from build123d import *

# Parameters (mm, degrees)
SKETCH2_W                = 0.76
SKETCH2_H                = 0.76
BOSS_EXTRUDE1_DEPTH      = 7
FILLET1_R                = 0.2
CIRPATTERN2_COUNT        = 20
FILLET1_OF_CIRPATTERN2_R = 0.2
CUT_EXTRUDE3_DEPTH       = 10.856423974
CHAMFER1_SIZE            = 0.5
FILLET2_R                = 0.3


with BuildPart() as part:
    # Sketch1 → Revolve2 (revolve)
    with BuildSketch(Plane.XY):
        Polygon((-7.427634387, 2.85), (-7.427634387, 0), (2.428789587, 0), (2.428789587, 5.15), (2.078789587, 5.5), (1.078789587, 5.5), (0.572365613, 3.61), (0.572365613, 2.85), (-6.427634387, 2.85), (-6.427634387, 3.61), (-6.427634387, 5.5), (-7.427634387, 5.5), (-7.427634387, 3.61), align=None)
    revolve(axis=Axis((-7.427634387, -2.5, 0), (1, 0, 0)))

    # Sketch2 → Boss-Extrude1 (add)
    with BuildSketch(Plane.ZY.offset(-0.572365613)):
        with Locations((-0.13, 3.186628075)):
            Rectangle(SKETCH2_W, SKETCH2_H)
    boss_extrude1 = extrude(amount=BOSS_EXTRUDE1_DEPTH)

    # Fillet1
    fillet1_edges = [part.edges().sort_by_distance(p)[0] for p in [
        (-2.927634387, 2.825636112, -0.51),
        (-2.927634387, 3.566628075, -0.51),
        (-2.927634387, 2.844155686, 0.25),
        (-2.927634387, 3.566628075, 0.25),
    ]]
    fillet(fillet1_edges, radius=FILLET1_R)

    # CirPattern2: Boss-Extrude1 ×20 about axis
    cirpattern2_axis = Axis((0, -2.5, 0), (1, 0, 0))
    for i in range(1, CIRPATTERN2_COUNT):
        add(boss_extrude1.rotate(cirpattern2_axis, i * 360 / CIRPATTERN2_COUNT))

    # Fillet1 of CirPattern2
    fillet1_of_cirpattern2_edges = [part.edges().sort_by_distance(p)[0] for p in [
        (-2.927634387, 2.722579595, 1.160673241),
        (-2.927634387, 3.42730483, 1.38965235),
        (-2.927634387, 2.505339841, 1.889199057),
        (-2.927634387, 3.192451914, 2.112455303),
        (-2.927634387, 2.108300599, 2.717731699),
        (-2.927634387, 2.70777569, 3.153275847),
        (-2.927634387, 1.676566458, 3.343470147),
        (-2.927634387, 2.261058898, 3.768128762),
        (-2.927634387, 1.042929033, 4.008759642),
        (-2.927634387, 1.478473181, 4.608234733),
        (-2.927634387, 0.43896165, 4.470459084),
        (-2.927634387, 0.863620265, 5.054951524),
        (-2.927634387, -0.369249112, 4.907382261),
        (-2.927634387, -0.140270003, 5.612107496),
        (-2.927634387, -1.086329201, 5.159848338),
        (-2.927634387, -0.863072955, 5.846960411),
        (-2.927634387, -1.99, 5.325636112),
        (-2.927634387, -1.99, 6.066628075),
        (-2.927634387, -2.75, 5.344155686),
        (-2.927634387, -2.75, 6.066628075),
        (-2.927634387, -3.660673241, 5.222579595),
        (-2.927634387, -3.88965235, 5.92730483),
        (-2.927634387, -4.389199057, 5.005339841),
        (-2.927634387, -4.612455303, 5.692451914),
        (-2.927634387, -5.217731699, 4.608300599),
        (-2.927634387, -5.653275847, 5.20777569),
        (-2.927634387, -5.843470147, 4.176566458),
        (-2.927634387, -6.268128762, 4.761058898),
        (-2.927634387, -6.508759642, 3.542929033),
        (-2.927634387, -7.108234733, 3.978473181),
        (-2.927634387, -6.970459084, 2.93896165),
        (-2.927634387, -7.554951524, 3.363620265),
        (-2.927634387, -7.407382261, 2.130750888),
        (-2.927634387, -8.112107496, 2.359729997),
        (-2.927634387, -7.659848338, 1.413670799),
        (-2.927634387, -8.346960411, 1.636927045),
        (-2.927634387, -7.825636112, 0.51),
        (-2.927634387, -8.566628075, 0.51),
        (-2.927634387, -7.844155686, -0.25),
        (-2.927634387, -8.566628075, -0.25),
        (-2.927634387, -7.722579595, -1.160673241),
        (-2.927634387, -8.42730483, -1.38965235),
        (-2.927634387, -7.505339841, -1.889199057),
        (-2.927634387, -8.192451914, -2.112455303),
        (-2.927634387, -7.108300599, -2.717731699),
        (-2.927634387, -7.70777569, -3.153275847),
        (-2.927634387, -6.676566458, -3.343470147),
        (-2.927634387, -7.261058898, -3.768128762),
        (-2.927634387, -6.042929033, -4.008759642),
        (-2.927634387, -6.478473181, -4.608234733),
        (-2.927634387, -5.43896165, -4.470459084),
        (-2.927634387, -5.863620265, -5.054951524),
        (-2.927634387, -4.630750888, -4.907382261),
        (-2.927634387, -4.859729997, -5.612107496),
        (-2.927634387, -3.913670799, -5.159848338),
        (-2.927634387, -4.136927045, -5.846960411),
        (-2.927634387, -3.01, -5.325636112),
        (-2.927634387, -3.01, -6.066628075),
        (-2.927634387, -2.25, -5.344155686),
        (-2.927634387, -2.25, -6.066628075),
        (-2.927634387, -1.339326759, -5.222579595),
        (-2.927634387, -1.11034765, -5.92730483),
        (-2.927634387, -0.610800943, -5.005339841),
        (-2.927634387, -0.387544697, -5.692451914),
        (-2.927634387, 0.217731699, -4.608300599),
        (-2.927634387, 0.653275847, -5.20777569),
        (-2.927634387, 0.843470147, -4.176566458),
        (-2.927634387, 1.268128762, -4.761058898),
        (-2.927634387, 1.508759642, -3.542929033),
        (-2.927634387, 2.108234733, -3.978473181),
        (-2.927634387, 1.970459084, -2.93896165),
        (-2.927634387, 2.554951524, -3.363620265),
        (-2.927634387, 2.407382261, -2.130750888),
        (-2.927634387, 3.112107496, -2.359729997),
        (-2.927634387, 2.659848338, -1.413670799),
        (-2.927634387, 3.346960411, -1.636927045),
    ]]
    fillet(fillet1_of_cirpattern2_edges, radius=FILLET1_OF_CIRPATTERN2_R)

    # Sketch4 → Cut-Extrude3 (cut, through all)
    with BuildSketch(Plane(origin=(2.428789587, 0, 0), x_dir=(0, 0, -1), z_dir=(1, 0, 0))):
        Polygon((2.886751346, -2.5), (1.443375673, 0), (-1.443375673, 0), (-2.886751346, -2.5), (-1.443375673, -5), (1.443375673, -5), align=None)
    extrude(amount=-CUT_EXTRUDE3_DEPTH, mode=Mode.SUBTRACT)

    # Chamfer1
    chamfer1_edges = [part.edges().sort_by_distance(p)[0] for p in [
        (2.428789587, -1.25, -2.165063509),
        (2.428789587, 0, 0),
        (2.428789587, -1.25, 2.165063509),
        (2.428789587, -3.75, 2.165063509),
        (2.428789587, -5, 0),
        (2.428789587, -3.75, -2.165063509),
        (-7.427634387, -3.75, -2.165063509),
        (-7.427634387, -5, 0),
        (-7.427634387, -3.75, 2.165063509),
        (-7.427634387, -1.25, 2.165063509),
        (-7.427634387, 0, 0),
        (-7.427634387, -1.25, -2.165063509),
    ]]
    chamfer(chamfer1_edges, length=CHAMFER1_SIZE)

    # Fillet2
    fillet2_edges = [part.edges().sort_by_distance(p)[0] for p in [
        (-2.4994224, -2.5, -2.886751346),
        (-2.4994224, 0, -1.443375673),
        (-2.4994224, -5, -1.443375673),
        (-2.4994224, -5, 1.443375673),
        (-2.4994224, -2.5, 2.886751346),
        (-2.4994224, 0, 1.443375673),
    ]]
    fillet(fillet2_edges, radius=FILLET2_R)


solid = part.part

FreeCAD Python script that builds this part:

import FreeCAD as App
import Part
import Sketcher
Q = App.Units.Quantity


def edges_at(feature, points):
    """Names of the edges that pass closest to the given points."""
    edges = feature.Shape.Edges
    near = lambda p: min(range(len(edges)), key=lambda i: edges[i].distToShape(Part.Vertex(*p))[0])
    return sorted({f"Edge{near(p) + 1}" for p in points})

doc = App.newDocument("Part")
body = doc.addObject("PartDesign::Body", "Body")

# Sketch on XY plane
sketch1 = body.newObject("Sketcher::SketchObject", "Sketch")
sketch1.AttachmentSupport = (doc.getObject("XY_Plane"), [""])
sketch1.MapMode = "FlatFace"
sketch1.addGeometry([
    Part.LineSegment(App.Vector(-7.427634, 0, 0), App.Vector(2.42879, 0, 0)),  # 0
    Part.LineSegment(App.Vector(2.42879, 0, 0), App.Vector(2.42879, 5.15, 0)),  # 1
    Part.LineSegment(App.Vector(2.42879, 5.15, 0), App.Vector(2.07879, 5.5, 0)),  # 2
    Part.LineSegment(App.Vector(2.07879, 5.5, 0), App.Vector(1.07879, 5.5, 0)),  # 3
    Part.LineSegment(App.Vector(1.07879, 5.5, 0), App.Vector(0.572366, 3.61, 0)),  # 4
    Part.LineSegment(App.Vector(0.572366, 3.61, 0), App.Vector(0.572366, 2.85, 0)),  # 5
    Part.LineSegment(App.Vector(0.572366, 2.85, 0), App.Vector(-6.427634, 2.85, 0)),  # 6
    Part.LineSegment(App.Vector(-6.427634, 2.85, 0), App.Vector(-6.427634, 5.5, 0)),  # 7
    Part.LineSegment(App.Vector(-6.427634, 5.5, 0), App.Vector(-7.427634, 5.5, 0)),  # 8
    Part.LineSegment(App.Vector(-7.427634, 5.5, 0), App.Vector(-7.427634, 0, 0)),  # 9
], False)
sketch1.addGeometry(Part.LineSegment(App.Vector(-7.427634, -2.5, 0), App.Vector(2.42879, -2.5, 0)), True)  # axis
sketch1.addConstraint([
    Sketcher.Constraint("Coincident", 0, 2, 1, 1),
    Sketcher.Constraint("Coincident", 1, 2, 2, 1),
    Sketcher.Constraint("Coincident", 2, 2, 3, 1),
    Sketcher.Constraint("Coincident", 3, 2, 4, 1),
    Sketcher.Constraint("Coincident", 4, 2, 5, 1),
    Sketcher.Constraint("Coincident", 5, 2, 6, 1),
    Sketcher.Constraint("Coincident", 6, 2, 7, 1),
    Sketcher.Constraint("Coincident", 7, 2, 8, 1),
    Sketcher.Constraint("Coincident", 8, 2, 9, 1),
    Sketcher.Constraint("Coincident", 9, 2, 0, 1),
    Sketcher.Constraint("Horizontal", 0),
    Sketcher.Constraint("Vertical", 1),
    Sketcher.Constraint("Horizontal", 3),
    Sketcher.Constraint("Vertical", 5),
    Sketcher.Constraint("Horizontal", 6),
    Sketcher.Constraint("Vertical", 7),
    Sketcher.Constraint("Horizontal", 8),
    Sketcher.Constraint("Vertical", 9),
    Sketcher.Constraint("Horizontal", 10),
    Sketcher.Constraint("PointOnObject", 0, 2, -1),
    Sketcher.Constraint("Horizontal", 3, 2, 7, 2),
    Sketcher.Constraint("Vertical", 9, 2, 10, 1),
    Sketcher.Constraint("Vertical", 1, 2, 10, 2),
    Sketcher.Constraint("Equal", 3, 8),
    Sketcher.Constraint("DistanceX", 3, 2, 3, 1, 1.0),
    Sketcher.Constraint("DistanceX", 6, 2, 6, 1, 7.0),
    Sketcher.Constraint("Angle", 2, Q("135 deg")),
    Sketcher.Constraint("Angle", 4, Q("-105 deg")),
    Sketcher.Constraint("DistanceY", 9, 2, 9, 1, 5.5),
    Sketcher.Constraint("DistanceY", 10, 1, 8, 2, 8.0),
    Sketcher.Constraint("DistanceY", 1, 1, 1, 2, 5.15),
    Sketcher.Constraint("DistanceY", 5, 2, 5, 1, 0.76),
    Sketcher.Constraint("DistanceY", 7, 1, 7, 2, 2.65),
    Sketcher.Constraint("DistanceX", -1, 1, 0, 2, 2.42879),
])
revolution = body.newObject("PartDesign::Revolution", "Revolution")
revolution.Profile = sketch1
revolution.ReferenceAxis = (sketch1, ["Axis0"])
revolution.Angle = 360

# Sketch on YZ plane
sketch2 = body.newObject("Sketcher::SketchObject", "Sketch001")
sketch2.AttachmentSupport = (doc.getObject("YZ_Plane"), [""])
sketch2.MapMode = "FlatFace"
sketch2.AttachmentOffset = App.Placement(App.Vector(0, 0, 0.572366), App.Rotation())
sketch2.addGeometry([
    Part.LineSegment(App.Vector(3.566628, -0.51, 0), App.Vector(2.806628, -0.51, 0)),
    Part.LineSegment(App.Vector(2.806628, -0.51, 0), App.Vector(2.806628, 0.25, 0)),
    Part.LineSegment(App.Vector(2.806628, 0.25, 0), App.Vector(3.566628, 0.25, 0)),
    Part.LineSegment(App.Vector(3.566628, 0.25, 0), App.Vector(3.566628, -0.51, 0)),
], False)
sketch2.addConstraint([
    Sketcher.Constraint("Coincident", 0, 2, 1, 1),
    Sketcher.Constraint("Coincident", 1, 2, 2, 1),
    Sketcher.Constraint("Coincident", 2, 2, 3, 1),
    Sketcher.Constraint("Coincident", 3, 2, 0, 1),
    Sketcher.Constraint("Horizontal", 0),
    Sketcher.Constraint("Vertical", 1),
    Sketcher.Constraint("Horizontal", 2),
    Sketcher.Constraint("Vertical", 3),
    Sketcher.Constraint("Equal", 2, 1),
    Sketcher.Constraint("DistanceX", 0, 2, 0, 1, 0.76),
    Sketcher.Constraint("DistanceY", 0, 2, -1, 1, 0.51),
    Sketcher.Constraint("DistanceX", -1, 1, 0, 2, 2.806628),
])
pad1 = body.newObject("PartDesign::Pad", "Pad")
pad1.Profile = sketch2
pad1.Length = 7
pad1.Reversed = True
doc.recompute()

fillet = body.newObject("PartDesign::Fillet", "Fillet")
fillet.Base = (pad1, edges_at(pad1, [
    (-2.928, 2.826, -0.51),
    (-2.928, 3.567, -0.51),
    (-2.928, 2.844, 0.25),
    (-2.928, 3.567, 0.25),
]))
fillet.Radius = 0.2
doc.recompute()

datumline = body.newObject("PartDesign::Line", "DatumLine")
datumline.Placement = App.Placement(App.Vector(0, -2.5, 0), App.Rotation(App.Vector(0, 0, 1), App.Vector(1, 0, 0)))
polarpattern = body.newObject("PartDesign::PolarPattern", "PolarPattern")
polarpattern.Originals = [pad1]
polarpattern.Axis = (datumline, [""])
polarpattern.Angle = 360
polarpattern.Occurrences = 20
body.Tip = polarpattern
doc.recompute()

fillet2 = body.newObject("PartDesign::Fillet", "Fillet001")
fillet2.Base = (polarpattern, edges_at(polarpattern, [
    (-2.928, 2.723, 1.161),
    (-2.928, 3.427, 1.39),
    (-2.928, 2.505, 1.889),
    (-2.928, 3.192, 2.112),
    (-2.928, 2.108, 2.718),
    (-2.928, 2.708, 3.153),
    (-2.928, 1.677, 3.343),
    (-2.928, 2.261, 3.768),
    (-2.928, 1.043, 4.009),
    (-2.928, 1.478, 4.608),
    (-2.928, 0.439, 4.47),
    (-2.928, 0.864, 5.055),
    (-2.928, -0.369, 4.907),
    (-2.928, -0.14, 5.612),
    (-2.928, -1.086, 5.16),
    (-2.928, -0.863, 5.847),
    (-2.928, -1.99, 5.326),
    (-2.928, -1.99, 6.067),
    (-2.928, -2.75, 5.344),
    (-2.928, -2.75, 6.067),
    (-2.928, -3.661, 5.223),
    (-2.928, -3.89, 5.927),
    (-2.928, -4.389, 5.005),
    (-2.928, -4.612, 5.692),
    (-2.928, -5.218, 4.608),
    (-2.928, -5.653, 5.208),
    (-2.928, -5.843, 4.177),
    (-2.928, -6.268, 4.761),
    (-2.928, -6.509, 3.543),
    (-2.928, -7.108, 3.978),
    (-2.928, -6.97, 2.939),
    (-2.928, -7.555, 3.364),
    (-2.928, -7.407, 2.131),
    (-2.928, -8.112, 2.36),
    (-2.928, -7.66, 1.414),
    (-2.928, -8.347, 1.637),
    (-2.928, -7.826, 0.51),
    (-2.928, -8.567, 0.51),
    (-2.928, -7.844, -0.25),
    (-2.928, -8.567, -0.25),
    (-2.928, -7.723, -1.161),
    (-2.928, -8.427, -1.39),
    (-2.928, -7.505, -1.889),
    (-2.928, -8.192, -2.112),
    (-2.928, -7.108, -2.718),
    (-2.928, -7.708, -3.153),
    (-2.928, -6.677, -3.343),
    (-2.928, -7.261, -3.768),
    (-2.928, -6.043, -4.009),
    (-2.928, -6.478, -4.608),
    (-2.928, -5.439, -4.47),
    (-2.928, -5.864, -5.055),
    (-2.928, -4.631, -4.907),
    (-2.928, -4.86, -5.612),
    (-2.928, -3.914, -5.16),
    (-2.928, -4.137, -5.847),
    (-2.928, -3.01, -5.326),
    (-2.928, -3.01, -6.067),
    (-2.928, -2.25, -5.344),
    (-2.928, -2.25, -6.067),
    (-2.928, -1.339, -5.223),
    (-2.928, -1.11, -5.927),
    (-2.928, -0.611, -5.005),
    (-2.928, -0.388, -5.692),
    (-2.928, 0.218, -4.608),
    (-2.928, 0.653, -5.208),
    (-2.928, 0.843, -4.177),
    (-2.928, 1.268, -4.761),
    (-2.928, 1.509, -3.543),
    (-2.928, 2.108, -3.978),
    (-2.928, 1.97, -2.939),
    (-2.928, 2.555, -3.364),
    (-2.928, 2.407, -2.131),
    (-2.928, 3.112, -2.36),
    (-2.928, 2.66, -1.414),
    (-2.928, 3.347, -1.637),
]))
fillet2.Radius = 0.2

# Sketch on YZ plane
sketch3 = body.newObject("Sketcher::SketchObject", "Sketch002")
sketch3.AttachmentSupport = (doc.getObject("YZ_Plane"), [""])
sketch3.MapMode = "FlatFace"
sketch3.AttachmentOffset = App.Placement(App.Vector(0, 0, 2.42879), App.Rotation())
sketch3.addGeometry([
    Part.LineSegment(App.Vector(-2.5, -2.886751, 0), App.Vector(0, -1.443376, 0)),  # 0
    Part.LineSegment(App.Vector(0, -1.443376, 0), App.Vector(0, 1.443376, 0)),  # 1
    Part.LineSegment(App.Vector(0, 1.443376, 0), App.Vector(-2.5, 2.886751, 0)),  # 2
    Part.LineSegment(App.Vector(-2.5, 2.886751, 0), App.Vector(-5, 1.443376, 0)),  # 3
    Part.LineSegment(App.Vector(-5, 1.443376, 0), App.Vector(-5, -1.443376, 0)),  # 4
    Part.LineSegment(App.Vector(-5, -1.443376, 0), App.Vector(-2.5, -2.886751, 0)),  # 5
], False)
sketch3.addConstraint([
    Sketcher.Constraint("Coincident", 0, 2, 1, 1),
    Sketcher.Constraint("Coincident", 1, 2, 2, 1),
    Sketcher.Constraint("Coincident", 2, 2, 3, 1),
    Sketcher.Constraint("Coincident", 3, 2, 4, 1),
    Sketcher.Constraint("Coincident", 4, 2, 5, 1),
    Sketcher.Constraint("Coincident", 5, 2, 0, 1),
    Sketcher.Constraint("Vertical", 1),
    Sketcher.Constraint("Vertical", 4),
    Sketcher.Constraint("Symmetric", 0, 2, 1, 2, -1, 1),
    Sketcher.Constraint("Symmetric", 2, 2, 5, 2, -1),
    Sketcher.Constraint("Parallel", 0, 3),
    Sketcher.Constraint("Parallel", 2, 5),
    Sketcher.Constraint("Horizontal", 1, 2, 3, 2),
    Sketcher.Constraint("Angle", 0, Q("30 deg")),
    Sketcher.Constraint("DistanceX", 3, 2, -1, 1, 5.0),
    Sketcher.Constraint("DistanceY", 1, 1, 1, 2, 2.886751),
])
pocket1 = body.newObject("PartDesign::Pocket", "Pocket")
pocket1.Profile = sketch3
pocket1.Type = "ThroughAll"
doc.recompute()

chamfer = body.newObject("PartDesign::Chamfer", "Chamfer")
chamfer.Base = (pocket1, edges_at(pocket1, [
    (2.429, -1.25, -2.165),
    (2.429, 0, 0),
    (2.429, -1.25, 2.165),
    (2.429, -3.75, 2.165),
    (2.429, -5, 0),
    (2.429, -3.75, -2.165),
    (-7.428, -3.75, -2.165),
    (-7.428, -5, 0),
    (-7.428, -3.75, 2.165),
    (-7.428, -1.25, 2.165),
    (-7.428, 0, 0),
    (-7.428, -1.25, -2.165),
]))
chamfer.Size = 0.5
doc.recompute()

fillet3 = body.newObject("PartDesign::Fillet", "Fillet002")
fillet3.Base = (chamfer, edges_at(chamfer, [
    (-2.499, -2.5, -2.887),
    (-2.499, 0, -1.443),
    (-2.499, -5, -1.443),
    (-2.499, -5, 1.443),
    (-2.499, -2.5, 2.887),
    (-2.499, 0, 1.443),
]))
fillet3.Radius = 0.3

doc.recompute()
